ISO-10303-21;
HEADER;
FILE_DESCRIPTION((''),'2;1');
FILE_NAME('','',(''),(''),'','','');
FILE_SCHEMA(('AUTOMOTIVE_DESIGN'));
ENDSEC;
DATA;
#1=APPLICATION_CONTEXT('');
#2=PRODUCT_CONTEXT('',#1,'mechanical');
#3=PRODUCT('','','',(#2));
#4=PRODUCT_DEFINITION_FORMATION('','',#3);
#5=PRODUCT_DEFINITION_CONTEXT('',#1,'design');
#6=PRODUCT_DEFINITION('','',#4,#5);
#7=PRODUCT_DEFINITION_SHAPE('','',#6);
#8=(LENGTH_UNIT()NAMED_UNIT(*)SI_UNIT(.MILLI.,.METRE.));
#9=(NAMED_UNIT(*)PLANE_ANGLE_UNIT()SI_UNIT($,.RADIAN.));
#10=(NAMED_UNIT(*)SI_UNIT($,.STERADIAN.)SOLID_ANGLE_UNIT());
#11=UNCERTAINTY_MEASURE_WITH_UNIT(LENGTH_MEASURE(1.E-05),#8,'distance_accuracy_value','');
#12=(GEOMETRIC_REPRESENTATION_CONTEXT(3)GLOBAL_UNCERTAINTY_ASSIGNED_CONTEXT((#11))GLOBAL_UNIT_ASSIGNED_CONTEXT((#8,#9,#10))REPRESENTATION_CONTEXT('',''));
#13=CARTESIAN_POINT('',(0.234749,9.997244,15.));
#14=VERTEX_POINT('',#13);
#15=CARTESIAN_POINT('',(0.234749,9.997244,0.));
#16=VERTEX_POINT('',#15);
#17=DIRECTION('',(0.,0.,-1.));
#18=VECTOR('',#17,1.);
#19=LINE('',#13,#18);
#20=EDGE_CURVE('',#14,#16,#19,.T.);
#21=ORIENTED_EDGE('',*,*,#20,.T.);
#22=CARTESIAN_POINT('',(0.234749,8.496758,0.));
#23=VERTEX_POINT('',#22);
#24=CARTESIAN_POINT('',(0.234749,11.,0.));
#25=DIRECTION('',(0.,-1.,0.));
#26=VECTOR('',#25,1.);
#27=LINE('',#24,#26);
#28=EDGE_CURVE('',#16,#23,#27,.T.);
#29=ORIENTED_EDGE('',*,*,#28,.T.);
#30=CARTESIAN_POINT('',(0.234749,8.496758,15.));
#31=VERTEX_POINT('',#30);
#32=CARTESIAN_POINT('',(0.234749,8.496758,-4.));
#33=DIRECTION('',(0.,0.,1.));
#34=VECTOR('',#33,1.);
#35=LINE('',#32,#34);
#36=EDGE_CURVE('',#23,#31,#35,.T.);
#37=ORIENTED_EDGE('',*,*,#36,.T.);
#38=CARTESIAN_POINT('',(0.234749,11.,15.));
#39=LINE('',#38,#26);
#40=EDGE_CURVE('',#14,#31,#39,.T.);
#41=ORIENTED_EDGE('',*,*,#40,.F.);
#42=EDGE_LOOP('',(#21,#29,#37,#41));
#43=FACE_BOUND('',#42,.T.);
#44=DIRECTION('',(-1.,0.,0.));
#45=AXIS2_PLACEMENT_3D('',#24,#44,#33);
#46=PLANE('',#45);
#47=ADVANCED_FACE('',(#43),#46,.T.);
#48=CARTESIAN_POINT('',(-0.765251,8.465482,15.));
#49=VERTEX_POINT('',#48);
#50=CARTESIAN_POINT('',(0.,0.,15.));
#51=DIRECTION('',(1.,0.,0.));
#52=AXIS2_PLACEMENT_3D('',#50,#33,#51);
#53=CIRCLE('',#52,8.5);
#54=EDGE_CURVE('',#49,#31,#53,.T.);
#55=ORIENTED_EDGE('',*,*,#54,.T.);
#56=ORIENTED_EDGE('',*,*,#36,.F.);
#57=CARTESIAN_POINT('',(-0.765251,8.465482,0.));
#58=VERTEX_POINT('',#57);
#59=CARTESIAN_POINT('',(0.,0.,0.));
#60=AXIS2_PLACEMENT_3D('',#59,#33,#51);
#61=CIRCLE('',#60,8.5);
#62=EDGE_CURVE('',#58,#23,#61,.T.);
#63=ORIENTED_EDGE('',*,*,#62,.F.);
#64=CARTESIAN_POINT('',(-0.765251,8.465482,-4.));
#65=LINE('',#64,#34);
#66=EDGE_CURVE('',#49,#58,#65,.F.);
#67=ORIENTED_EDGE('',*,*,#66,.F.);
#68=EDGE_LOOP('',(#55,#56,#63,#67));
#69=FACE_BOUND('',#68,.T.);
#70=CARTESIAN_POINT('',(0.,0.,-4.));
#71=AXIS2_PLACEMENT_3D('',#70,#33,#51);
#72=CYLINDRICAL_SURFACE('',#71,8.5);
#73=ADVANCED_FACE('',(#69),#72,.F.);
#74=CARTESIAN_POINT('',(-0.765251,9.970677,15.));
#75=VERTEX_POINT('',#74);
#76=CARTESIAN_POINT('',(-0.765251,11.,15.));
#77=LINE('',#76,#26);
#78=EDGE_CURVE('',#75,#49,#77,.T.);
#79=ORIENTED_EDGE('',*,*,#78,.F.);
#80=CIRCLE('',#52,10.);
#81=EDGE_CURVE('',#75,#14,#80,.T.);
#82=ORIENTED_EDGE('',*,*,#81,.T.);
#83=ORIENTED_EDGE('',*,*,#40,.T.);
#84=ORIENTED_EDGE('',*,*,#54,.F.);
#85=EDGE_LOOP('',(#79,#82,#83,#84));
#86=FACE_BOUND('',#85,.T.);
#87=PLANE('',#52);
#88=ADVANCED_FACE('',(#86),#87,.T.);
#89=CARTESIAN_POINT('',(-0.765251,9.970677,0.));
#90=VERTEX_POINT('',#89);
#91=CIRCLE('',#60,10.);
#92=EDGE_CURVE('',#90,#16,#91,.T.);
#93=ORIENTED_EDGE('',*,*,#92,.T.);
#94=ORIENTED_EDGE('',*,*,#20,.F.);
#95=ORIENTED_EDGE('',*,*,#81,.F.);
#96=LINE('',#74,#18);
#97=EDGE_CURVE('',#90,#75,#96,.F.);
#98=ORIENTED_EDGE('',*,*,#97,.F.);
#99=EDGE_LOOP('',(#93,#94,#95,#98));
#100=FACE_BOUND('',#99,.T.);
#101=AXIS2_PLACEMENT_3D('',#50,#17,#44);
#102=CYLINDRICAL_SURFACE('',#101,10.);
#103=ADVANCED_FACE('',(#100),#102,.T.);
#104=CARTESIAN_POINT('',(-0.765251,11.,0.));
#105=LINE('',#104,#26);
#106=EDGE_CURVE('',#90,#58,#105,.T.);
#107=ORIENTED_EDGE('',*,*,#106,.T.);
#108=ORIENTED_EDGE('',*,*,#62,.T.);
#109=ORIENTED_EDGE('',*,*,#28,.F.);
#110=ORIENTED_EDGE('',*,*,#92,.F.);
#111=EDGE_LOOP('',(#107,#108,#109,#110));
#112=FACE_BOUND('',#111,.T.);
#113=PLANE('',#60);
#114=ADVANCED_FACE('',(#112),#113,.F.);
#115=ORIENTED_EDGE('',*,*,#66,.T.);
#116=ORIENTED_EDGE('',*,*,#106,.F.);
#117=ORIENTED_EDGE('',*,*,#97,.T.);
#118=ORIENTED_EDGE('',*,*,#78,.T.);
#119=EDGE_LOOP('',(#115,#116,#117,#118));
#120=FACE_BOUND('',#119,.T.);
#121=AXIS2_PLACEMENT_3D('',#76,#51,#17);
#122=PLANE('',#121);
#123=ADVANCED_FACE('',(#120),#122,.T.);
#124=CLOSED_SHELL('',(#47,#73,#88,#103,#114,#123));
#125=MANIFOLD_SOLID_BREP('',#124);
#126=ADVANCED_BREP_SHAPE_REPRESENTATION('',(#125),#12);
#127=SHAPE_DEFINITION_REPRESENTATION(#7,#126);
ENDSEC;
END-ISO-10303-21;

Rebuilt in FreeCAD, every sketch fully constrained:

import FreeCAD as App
import Part
import Sketcher

doc = App.newDocument("Part")
body = doc.addObject("PartDesign::Body", "Body")

# Sketch on XY plane
sketch1 = body.newObject("Sketcher::SketchObject", "Sketch")
sketch1.AttachmentSupport = (doc.getObject("XY_Plane"), [""])
sketch1.MapMode = "FlatFace"
sketch1.addGeometry(Part.Circle(App.Vector(0, 0, 0), App.Vector(0, 0, 1), 10), False)
sketch1.addConstraint([
    Sketcher.Constraint("Coincident", 0, 3, -1, 1),
    Sketcher.Constraint("Diameter", 0, 20.0),
])
pad1 = body.newObject("PartDesign::Pad", "Pad")
pad1.Profile = sketch1
pad1.Length = 15

# Sketch on XY plane
sketch2 = body.newObject("Sketcher::SketchObject", "Sketch001")
sketch2.AttachmentSupport = (doc.getObject("XY_Plane"), [""])
sketch2.MapMode = "FlatFace"
sketch2.AttachmentOffset = App.Placement(App.Vector(0, 0, 15), App.Rotation())
sketch2.addGeometry(Part.Circle(App.Vector(0, 0, 0), App.Vector(0, 0, 1), 8.5), False)
sketch2.addConstraint([
    Sketcher.Constraint("Coincident", 0, 3, -1, 1),
    Sketcher.Constraint("Diameter", 0, 17.0),
])
pocket1 = body.newObject("PartDesign::Pocket", "Pocket")
pocket1.Profile = sketch2
pocket1.Length = 19

# Sketch on XZ plane
sketch3 = body.newObject("Sketcher::SketchObject", "Sketch002")
sketch3.AttachmentSupport = (doc.getObject("XZ_Plane"), [""])
sketch3.MapMode = "FlatFace"
sketch3.AttachmentOffset = App.Placement(App.Vector(0, 0, -8), App.Rotation())
sketch3.addGeometry([
    Part.LineSegment(App.Vector(-0.765251, 0, 0), App.Vector(-0.765251, 15, 0)),
    Part.LineSegment(App.Vector(-0.765251, 15, 0), App.Vector(0.234749, 15, 0)),
    Part.LineSegment(App.Vector(0.234749, 15, 0), App.Vector(0.234749, 0, 0)),
    Part.LineSegment(App.Vector(0.234749, 0, 0), App.Vector(-0.765251, 0, 0)),
], False)
sketch3.addConstraint([
    Sketcher.Constraint("Coincident", 0, 2, 1, 1),
    Sketcher.Constraint("Coincident", 1, 2, 2, 1),
    Sketcher.Constraint("Coincident", 2, 2, 3, 1),
    Sketcher.Constraint("Coincident", 3, 2, 0, 1),
    Sketcher.Constraint("Vertical", 0),
    Sketcher.Constraint("Horizontal", 1),
    Sketcher.Constraint("Vertical", 2),
    Sketcher.Constraint("Horizontal", 3),
    Sketcher.Constraint("PointOnObject", 2, 2, -1),
    Sketcher.Constraint("DistanceX", 1, 1, 1, 2, 1.0),
    Sketcher.Constraint("DistanceY", 0, 1, 0, 2, 15.0),
    Sketcher.Constraint("DistanceX", 0, 2, -1, 1, 0.765251),
])
pocket2 = body.newObject("PartDesign::Pocket", "Pocket001")
pocket2.Profile = sketch3
pocket2.Length = 3

doc.recompute()
